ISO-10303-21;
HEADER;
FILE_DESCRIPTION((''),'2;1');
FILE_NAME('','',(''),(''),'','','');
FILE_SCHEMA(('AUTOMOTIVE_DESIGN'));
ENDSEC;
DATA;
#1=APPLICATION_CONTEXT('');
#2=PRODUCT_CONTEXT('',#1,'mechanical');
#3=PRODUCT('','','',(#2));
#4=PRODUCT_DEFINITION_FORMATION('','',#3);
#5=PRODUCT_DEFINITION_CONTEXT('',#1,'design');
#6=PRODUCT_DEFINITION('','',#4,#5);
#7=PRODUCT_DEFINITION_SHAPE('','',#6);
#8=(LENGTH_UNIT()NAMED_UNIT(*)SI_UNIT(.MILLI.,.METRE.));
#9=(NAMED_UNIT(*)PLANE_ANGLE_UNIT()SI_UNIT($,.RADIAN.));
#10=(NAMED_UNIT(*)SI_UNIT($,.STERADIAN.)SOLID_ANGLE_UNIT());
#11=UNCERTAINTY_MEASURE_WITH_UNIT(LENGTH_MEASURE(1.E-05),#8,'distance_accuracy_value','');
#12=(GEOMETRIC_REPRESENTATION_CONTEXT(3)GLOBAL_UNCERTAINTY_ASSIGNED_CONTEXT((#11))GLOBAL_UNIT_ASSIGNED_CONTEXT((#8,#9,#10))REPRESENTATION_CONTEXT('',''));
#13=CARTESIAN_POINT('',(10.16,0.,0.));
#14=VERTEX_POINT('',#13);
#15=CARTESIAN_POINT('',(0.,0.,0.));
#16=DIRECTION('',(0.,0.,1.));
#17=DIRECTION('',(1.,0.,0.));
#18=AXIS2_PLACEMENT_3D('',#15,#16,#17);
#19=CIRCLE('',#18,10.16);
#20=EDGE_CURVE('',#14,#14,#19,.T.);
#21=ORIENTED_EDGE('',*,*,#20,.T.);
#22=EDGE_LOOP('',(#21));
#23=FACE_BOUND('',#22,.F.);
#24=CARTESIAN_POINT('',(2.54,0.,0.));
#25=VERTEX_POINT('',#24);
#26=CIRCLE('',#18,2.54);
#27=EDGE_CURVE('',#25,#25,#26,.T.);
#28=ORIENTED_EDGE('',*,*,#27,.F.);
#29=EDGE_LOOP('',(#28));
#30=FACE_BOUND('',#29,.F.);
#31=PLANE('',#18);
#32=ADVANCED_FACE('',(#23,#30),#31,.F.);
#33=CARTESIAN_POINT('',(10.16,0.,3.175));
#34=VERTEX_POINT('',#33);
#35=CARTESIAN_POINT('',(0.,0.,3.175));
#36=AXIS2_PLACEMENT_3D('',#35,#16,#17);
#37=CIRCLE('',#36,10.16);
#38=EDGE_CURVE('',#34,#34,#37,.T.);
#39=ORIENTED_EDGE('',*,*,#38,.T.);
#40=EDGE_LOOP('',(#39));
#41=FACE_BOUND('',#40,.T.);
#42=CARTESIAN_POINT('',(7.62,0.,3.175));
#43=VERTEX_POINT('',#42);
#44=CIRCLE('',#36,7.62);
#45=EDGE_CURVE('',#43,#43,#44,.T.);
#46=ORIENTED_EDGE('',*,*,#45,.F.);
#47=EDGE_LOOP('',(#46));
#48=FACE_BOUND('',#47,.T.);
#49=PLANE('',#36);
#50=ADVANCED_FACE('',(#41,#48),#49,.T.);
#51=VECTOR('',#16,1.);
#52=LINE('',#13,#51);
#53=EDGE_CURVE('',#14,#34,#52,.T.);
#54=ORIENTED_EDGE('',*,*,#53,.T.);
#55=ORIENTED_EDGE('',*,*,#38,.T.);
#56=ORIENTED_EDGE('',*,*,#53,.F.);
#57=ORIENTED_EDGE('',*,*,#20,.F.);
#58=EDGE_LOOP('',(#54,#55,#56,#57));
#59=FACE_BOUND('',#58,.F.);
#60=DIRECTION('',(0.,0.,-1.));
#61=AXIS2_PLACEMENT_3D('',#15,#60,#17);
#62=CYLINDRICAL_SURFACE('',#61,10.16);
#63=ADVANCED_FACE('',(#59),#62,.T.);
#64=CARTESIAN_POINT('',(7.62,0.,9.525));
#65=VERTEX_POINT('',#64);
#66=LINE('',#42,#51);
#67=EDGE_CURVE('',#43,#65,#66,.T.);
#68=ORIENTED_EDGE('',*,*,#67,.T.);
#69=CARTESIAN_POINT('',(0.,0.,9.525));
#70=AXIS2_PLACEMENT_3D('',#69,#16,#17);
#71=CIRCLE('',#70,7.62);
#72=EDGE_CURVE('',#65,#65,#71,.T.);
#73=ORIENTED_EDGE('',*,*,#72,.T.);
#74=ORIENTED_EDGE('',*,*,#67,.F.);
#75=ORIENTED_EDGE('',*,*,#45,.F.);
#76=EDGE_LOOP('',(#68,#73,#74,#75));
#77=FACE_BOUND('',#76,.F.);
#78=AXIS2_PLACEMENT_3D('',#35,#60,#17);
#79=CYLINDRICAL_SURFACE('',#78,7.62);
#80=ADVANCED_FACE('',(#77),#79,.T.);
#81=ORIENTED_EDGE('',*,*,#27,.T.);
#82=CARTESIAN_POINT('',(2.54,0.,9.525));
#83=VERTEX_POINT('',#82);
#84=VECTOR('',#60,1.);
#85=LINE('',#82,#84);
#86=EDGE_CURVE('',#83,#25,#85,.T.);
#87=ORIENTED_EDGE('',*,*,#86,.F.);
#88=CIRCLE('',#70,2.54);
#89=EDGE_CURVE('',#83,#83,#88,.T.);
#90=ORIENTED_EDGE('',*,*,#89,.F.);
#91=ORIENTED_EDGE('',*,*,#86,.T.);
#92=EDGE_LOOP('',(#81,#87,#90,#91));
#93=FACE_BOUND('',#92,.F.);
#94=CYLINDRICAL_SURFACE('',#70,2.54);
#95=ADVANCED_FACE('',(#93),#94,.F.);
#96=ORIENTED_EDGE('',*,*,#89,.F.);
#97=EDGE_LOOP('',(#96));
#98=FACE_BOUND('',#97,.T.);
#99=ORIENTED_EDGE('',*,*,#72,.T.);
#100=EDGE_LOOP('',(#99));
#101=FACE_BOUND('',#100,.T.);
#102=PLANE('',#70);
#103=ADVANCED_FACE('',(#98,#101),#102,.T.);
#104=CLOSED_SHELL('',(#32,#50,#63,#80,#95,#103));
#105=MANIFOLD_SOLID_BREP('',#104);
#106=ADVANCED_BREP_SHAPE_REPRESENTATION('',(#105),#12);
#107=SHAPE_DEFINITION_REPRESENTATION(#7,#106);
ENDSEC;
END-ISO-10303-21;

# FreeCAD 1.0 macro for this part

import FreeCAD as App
import Part
import Sketcher

V = App.Vector
Q = App.Units.Quantity

doc = App.newDocument("Part")
body = doc.addObject("PartDesign::Body", "Body")

# Sketch on XY plane
sketch1 = body.newObject("Sketcher::SketchObject", "Sketch")
sketch1.AttachmentSupport = (doc.getObject("XY_Plane"), [""])
sketch1.MapMode = "FlatFace"
sketch1.addGeometry(Part.Circle(V(0, 0, 0), V(0, 0, 1), 10), False)
sketch1.addConstraint(Sketcher.Constraint("Coincident", 0, 3, -1, 1))
sketch1.addConstraint(Sketcher.Constraint("Diameter", 0, Q("0.8 in")))
pad1 = body.newObject("PartDesign::Pad", "Pad")
pad1.Profile = sketch1
pad1.Length = Q("0.125 in")

# Sketch on XY plane
sketch2 = body.newObject("Sketcher::SketchObject", "Sketch001")
sketch2.AttachmentSupport = (doc.getObject("XY_Plane"), [""])
sketch2.MapMode = "FlatFace"
sketch2.AttachmentOffset = App.Placement(V(0, 0, 0.125 * 25.4), App.Rotation())
sketch2.addGeometry(Part.Circle(V(0, 0, 0), V(0, 0, 1), 8), False)
sketch2.addConstraint(Sketcher.Constraint("Coincident", 0, 3, -1, 1))
sketch2.addConstraint(Sketcher.Constraint("Diameter", 0, Q("0.6 in")))
pad2 = body.newObject("PartDesign::Pad", "Pad001")
pad2.Profile = sketch2
pad2.Length = Q("0.25 in")

# Sketch on XY plane
sketch3 = body.newObject("Sketcher::SketchObject", "Sketch002")
sketch3.AttachmentSupport = (doc.getObject("XY_Plane"), [""])
sketch3.MapMode = "FlatFace"
sketch3.AttachmentOffset = App.Placement(V(0, 0, 0.375 * 25.4), App.Rotation())
sketch3.addGeometry(Part.Circle(V(0, 0, 0), V(0, 0, 1), 2.5), False)
sketch3.addConstraint(Sketcher.Constraint("Coincident", 0, 3, -1, 1))
sketch3.addConstraint(Sketcher.Constraint("Diameter", 0, Q("0.2 in")))
pocket1 = body.newObject("PartDesign::Pocket", "Pocket")
pocket1.Profile = sketch3
pocket1.Type = "ThroughAll"

doc.recompute()
